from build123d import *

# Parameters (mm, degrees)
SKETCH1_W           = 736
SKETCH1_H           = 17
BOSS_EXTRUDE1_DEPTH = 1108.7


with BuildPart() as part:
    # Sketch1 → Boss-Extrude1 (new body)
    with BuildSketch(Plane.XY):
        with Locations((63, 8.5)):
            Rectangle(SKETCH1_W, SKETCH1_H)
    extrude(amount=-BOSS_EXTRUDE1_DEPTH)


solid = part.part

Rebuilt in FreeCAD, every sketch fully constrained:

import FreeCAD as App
import Part
import Sketcher
from FreeCAD import Vector
Q = App.Units.Quantity

doc = App.newDocument("Part")
params = doc.addObject("Spreadsheet::Sheet", "Params")
for row, (alias, value) in enumerate([
    ("sketch1_width", "736 mm"),
    ("sketch1_height", "17 mm"),
    ("pad1_length", "1108.7 mm"),
], start=1):
    params.set(f"A{row}", alias)
    params.set(f"B{row}", "=" + value)
    params.setAlias(f"B{row}", alias)

body = doc.addObject("PartDesign::Body", "Body")

# Sketch on XY plane
sketch1 = doc.addObject("Sketcher::SketchObject", "Sketch")
body.addObject(sketch1)
sketch1.AttachmentSupport = (doc.XY_Plane, [""])
sketch1.MapMode = "FlatFace"
sketch1.addGeometry(Part.LineSegment(Vector(-305, 17, 0), Vector(-305, 0, 0)), False)
sketch1.addGeometry(Part.LineSegment(Vector(-305, 0, 0), Vector(431, 0, 0)), False)
sketch1.addGeometry(Part.LineSegment(Vector(431, 0, 0), Vector(431, 17, 0)), False)
sketch1.addGeometry(Part.LineSegment(Vector(431, 17, 0), Vector(-305, 17, 0)), False)
sketch1.addConstraint(Sketcher.Constraint("Coincident", 0, 2, 1, 1))
sketch1.addConstraint(Sketcher.Constraint("Coincident", 1, 2, 2, 1))
sketch1.addConstraint(Sketcher.Constraint("Coincident", 2, 2, 3, 1))
sketch1.addConstraint(Sketcher.Constraint("Coincident", 3, 2, 0, 1))
sketch1.addConstraint(Sketcher.Constraint("Vertical", 0))
sketch1.addConstraint(Sketcher.Constraint("Horizontal", 1))
sketch1.addConstraint(Sketcher.Constraint("Vertical", 2))
sketch1.addConstraint(Sketcher.Constraint("Horizontal", 3))
sketch1.addConstraint(Sketcher.Constraint("PointOnObject", 0, 2, -1))
sketch1.addConstraint(Sketcher.Constraint("DistanceX", 1, 1, 1, 2, Q("736 mm")))
sketch1.addConstraint(Sketcher.Constraint("DistanceY", 0, 2, 0, 1, Q("17 mm")))
sketch1.addConstraint(Sketcher.Constraint("DistanceX", 0, 2, -1, 1, Q("305 mm")))
sketch1.setExpression("Constraints[9]", "Params.sketch1_width")
sketch1.setExpression("Constraints[10]", "Params.sketch1_height")
pad1 = doc.addObject("PartDesign::Pad", "Pad")
body.addObject(pad1)
pad1.Profile = sketch1
pad1.setExpression("Length", "Params.pad1_length")
pad1.Reversed = True

doc.recompute()
